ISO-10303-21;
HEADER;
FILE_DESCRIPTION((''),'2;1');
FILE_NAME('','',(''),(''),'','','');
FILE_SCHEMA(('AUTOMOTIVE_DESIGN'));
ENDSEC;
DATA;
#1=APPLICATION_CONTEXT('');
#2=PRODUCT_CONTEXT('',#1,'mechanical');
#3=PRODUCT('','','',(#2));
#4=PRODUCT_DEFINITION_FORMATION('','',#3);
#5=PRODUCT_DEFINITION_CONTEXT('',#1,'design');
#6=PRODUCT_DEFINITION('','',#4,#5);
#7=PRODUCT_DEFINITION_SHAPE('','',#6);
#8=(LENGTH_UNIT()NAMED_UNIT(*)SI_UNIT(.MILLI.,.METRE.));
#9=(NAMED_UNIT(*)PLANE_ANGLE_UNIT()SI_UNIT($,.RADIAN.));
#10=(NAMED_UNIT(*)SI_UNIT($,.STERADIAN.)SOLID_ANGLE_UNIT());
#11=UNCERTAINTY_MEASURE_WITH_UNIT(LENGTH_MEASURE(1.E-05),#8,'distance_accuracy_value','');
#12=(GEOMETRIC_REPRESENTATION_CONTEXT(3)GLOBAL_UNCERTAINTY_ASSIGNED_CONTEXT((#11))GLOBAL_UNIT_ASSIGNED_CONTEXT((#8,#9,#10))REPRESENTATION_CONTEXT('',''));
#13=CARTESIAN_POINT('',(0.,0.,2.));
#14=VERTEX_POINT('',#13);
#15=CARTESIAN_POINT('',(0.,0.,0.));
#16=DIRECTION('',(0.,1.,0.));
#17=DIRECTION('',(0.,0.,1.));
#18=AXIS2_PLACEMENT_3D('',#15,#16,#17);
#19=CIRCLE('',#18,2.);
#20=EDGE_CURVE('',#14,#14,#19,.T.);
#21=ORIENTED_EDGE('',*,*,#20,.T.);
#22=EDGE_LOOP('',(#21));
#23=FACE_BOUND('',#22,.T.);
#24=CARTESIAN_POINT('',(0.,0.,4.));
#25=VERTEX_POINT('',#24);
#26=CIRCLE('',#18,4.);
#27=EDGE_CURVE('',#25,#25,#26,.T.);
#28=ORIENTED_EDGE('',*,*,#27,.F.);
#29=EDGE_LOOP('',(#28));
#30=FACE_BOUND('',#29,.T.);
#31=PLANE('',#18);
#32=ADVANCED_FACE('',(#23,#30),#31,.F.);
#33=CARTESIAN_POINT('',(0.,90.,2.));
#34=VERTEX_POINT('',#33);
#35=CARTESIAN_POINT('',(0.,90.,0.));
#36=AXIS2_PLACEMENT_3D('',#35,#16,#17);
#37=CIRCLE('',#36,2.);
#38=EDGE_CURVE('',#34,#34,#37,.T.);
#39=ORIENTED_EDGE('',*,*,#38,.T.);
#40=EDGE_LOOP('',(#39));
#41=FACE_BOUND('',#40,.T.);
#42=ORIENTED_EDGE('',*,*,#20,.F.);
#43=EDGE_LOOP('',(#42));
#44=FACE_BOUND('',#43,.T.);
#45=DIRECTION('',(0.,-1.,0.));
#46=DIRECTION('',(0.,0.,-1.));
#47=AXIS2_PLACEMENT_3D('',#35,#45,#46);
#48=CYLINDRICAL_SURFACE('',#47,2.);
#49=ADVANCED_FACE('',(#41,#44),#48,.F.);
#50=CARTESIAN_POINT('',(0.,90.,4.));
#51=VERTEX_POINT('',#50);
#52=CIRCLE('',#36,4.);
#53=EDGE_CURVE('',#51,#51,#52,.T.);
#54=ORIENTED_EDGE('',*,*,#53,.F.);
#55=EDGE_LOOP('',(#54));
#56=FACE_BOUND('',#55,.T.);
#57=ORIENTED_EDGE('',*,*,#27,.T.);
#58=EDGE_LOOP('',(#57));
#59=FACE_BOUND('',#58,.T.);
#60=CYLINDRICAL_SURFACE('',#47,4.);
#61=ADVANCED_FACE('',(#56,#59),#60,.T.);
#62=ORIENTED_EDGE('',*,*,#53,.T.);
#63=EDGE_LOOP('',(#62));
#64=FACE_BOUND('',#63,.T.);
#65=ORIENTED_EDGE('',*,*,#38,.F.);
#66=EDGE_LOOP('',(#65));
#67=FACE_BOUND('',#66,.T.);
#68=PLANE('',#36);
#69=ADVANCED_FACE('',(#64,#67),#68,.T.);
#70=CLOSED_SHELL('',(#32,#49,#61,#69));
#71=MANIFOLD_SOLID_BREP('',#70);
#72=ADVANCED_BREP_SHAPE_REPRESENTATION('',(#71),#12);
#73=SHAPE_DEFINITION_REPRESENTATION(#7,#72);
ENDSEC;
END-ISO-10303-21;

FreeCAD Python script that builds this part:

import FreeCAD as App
import Part
import Sketcher

doc = App.newDocument("Part")
body = doc.addObject("PartDesign::Body", "Body")

sketch1 = body.newObject("Sketcher::SketchObject", "Sketch")
sketch1.AttachmentSupport = (doc.getObject("XZ_Plane"), [""])
sketch1.MapMode = "FlatFace"
sketch1.addGeometry([
    Part.Circle(App.Vector(0, 0, 0), App.Vector(0, 0, 1), 4),
    Part.Circle(App.Vector(0, 0, 0), App.Vector(0, 0, 1), 2),
], False)
sketch1.addConstraint([
    Sketcher.Constraint("Coincident", 0, 3, -1, 1),
    Sketcher.Constraint("Coincident", 1, 3, -1, 1),
    Sketcher.Constraint("Diameter", 0, 8.0),
    Sketcher.Constraint("Diameter", 1, 4.0),
])
pad1 = body.newObject("PartDesign::Pad", "Pad")
pad1.Profile = sketch1
pad1.Length = 90
pad1.Reversed = True

doc.recompute()
